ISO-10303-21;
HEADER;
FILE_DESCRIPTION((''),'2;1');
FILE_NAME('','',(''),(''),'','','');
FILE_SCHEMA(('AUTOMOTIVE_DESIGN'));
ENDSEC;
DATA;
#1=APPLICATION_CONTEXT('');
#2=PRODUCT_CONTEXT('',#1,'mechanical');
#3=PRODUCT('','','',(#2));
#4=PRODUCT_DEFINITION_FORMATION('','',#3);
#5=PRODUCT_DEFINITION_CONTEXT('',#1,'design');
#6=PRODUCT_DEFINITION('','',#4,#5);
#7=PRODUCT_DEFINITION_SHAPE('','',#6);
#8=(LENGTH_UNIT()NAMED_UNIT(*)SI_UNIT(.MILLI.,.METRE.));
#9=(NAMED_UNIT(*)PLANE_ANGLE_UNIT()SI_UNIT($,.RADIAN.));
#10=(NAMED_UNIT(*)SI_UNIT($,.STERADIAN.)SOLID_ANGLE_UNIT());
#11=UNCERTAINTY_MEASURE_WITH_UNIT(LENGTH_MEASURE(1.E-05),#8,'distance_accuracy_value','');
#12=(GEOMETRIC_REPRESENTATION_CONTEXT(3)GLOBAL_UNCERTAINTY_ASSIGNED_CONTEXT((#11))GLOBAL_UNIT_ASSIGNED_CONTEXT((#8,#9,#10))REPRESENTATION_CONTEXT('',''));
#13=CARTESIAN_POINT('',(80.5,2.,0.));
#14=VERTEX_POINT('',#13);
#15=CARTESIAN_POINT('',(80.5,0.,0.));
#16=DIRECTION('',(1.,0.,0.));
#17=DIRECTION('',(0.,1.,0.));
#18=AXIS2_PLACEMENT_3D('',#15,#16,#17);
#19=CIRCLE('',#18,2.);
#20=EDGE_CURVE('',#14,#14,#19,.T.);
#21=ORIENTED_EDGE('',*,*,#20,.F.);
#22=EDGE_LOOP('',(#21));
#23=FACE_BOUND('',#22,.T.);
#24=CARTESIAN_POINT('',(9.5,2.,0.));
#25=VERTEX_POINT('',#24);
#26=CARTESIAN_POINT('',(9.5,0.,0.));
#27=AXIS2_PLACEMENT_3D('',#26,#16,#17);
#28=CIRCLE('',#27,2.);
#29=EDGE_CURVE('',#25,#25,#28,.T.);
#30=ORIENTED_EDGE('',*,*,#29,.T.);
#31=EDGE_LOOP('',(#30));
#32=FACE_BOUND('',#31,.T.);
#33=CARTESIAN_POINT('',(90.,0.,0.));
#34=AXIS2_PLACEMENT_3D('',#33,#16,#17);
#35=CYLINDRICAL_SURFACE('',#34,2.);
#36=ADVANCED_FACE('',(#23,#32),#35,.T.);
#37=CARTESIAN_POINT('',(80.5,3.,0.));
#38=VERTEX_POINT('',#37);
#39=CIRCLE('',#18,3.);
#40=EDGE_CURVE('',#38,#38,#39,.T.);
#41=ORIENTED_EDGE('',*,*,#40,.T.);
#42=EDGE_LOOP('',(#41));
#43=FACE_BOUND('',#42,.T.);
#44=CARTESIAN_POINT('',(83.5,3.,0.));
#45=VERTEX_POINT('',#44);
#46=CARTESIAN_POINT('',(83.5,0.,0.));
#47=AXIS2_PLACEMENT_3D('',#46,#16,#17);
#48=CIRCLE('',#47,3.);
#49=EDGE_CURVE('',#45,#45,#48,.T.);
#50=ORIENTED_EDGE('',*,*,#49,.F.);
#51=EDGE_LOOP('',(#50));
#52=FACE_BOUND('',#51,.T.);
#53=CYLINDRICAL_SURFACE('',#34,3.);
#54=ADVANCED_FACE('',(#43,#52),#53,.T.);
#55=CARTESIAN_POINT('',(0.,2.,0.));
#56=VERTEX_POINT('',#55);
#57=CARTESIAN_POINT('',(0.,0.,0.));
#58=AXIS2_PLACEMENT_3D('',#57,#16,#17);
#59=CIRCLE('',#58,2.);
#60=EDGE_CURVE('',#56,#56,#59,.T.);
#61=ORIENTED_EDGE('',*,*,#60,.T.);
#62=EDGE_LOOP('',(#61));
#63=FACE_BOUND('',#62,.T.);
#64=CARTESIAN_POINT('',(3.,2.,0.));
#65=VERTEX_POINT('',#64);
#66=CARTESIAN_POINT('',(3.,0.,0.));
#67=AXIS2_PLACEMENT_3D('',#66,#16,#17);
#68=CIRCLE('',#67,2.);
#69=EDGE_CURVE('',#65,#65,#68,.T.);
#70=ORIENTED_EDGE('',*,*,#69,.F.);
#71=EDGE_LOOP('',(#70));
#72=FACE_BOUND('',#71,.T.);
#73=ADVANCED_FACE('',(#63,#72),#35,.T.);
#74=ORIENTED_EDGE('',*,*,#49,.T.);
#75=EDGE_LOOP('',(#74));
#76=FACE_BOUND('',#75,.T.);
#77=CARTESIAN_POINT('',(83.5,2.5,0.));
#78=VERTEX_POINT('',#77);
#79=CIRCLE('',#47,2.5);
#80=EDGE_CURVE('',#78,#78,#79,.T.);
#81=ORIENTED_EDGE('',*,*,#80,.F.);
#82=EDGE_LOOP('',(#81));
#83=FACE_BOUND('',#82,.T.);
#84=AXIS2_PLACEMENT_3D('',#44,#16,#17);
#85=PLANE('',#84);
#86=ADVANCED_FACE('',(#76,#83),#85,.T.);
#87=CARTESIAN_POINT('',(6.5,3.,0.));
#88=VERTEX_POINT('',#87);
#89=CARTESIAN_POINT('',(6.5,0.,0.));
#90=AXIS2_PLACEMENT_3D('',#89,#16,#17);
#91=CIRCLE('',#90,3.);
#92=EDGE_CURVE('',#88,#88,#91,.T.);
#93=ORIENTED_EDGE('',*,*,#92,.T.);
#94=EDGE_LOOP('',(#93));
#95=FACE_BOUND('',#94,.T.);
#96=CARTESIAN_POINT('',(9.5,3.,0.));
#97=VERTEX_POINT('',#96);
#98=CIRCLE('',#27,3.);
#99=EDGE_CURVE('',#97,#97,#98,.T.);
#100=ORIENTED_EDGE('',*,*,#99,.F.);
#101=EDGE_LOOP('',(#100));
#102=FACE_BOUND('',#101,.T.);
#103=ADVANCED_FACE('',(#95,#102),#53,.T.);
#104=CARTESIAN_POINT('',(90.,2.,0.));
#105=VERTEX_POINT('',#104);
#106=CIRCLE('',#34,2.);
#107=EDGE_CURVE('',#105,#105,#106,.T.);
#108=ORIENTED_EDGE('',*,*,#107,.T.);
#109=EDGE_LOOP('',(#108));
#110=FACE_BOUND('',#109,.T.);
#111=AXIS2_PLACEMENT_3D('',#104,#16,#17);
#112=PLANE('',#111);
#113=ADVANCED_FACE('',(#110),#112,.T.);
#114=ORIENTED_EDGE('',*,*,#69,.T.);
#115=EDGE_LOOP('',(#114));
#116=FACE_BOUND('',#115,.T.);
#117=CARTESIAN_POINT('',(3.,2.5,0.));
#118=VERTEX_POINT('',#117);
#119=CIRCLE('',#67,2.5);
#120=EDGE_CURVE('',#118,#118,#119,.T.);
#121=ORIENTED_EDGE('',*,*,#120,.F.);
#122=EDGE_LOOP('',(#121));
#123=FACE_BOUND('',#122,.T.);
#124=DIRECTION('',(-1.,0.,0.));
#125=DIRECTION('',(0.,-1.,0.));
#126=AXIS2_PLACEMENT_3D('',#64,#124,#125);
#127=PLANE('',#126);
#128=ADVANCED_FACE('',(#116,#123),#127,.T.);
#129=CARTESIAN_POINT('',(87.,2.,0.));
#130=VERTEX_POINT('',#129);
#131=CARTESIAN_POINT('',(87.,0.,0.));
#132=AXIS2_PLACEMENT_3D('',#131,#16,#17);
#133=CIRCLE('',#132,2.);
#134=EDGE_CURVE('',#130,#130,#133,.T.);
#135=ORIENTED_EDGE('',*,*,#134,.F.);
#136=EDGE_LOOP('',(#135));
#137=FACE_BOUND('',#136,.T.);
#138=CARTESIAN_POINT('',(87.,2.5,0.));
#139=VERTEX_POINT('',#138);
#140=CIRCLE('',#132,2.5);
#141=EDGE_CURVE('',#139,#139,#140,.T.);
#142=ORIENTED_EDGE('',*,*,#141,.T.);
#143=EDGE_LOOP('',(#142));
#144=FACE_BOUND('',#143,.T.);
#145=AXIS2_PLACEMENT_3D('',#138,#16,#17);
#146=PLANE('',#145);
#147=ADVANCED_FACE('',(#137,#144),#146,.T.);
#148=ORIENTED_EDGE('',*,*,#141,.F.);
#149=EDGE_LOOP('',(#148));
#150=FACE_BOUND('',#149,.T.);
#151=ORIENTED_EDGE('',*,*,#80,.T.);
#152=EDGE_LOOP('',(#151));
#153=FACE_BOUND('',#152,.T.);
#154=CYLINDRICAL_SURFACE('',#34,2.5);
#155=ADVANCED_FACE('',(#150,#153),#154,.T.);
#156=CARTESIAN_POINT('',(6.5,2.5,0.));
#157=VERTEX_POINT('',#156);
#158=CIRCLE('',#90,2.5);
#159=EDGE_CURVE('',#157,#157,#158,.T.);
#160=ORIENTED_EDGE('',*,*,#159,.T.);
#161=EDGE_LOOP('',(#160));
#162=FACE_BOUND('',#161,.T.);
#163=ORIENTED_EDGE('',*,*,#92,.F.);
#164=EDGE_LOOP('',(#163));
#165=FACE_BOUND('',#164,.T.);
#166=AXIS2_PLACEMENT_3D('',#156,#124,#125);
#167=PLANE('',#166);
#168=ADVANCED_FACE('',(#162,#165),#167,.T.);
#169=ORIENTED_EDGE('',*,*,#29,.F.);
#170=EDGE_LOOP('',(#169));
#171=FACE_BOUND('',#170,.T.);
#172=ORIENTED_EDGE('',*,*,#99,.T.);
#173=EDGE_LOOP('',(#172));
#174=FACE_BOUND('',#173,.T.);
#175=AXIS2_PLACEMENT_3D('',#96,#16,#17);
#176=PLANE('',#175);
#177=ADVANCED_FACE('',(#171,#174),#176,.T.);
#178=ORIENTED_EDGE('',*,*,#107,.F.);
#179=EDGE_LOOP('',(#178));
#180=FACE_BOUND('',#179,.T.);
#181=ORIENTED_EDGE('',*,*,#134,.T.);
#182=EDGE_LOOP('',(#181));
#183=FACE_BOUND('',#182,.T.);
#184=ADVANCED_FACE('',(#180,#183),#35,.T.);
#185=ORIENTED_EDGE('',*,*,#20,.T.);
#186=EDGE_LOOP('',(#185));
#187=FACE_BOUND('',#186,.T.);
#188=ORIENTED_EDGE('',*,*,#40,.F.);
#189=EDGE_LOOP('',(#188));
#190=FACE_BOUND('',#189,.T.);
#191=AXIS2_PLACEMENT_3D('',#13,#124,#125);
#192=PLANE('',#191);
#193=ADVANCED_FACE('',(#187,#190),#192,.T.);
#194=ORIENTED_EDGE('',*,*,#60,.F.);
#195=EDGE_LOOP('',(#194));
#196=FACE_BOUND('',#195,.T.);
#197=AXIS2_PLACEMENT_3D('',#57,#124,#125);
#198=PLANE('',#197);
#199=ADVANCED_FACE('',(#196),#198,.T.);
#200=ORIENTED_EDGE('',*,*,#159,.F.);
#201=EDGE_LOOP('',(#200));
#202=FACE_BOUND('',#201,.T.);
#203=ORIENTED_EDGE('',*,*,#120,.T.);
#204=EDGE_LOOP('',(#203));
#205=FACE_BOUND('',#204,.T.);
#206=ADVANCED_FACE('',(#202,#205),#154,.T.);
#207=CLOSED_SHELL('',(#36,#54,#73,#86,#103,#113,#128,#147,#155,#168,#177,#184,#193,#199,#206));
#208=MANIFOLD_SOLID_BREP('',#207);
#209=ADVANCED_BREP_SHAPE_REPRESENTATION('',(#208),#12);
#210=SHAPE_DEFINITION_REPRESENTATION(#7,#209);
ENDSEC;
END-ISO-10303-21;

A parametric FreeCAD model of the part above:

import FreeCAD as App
import Part
import Sketcher

V = App.Vector


def add_polygon(sketch, points):
    """Adds a closed chain of lines whose ends are joined by coincident constraints."""
    first, n = sketch.GeometryCount, len(points)
    for a, b in zip(points, points[1:] + points[:1]):
        sketch.addGeometry(Part.LineSegment(App.Vector(*a, 0), App.Vector(*b, 0)), False)
    for i in range(n):
        sketch.addConstraint(Sketcher.Constraint("Coincident", first + i, 2, first + (i + 1) % n, 1))

doc = App.newDocument("Part")
body = doc.addObject("PartDesign::Body", "Body")

# Sketch on XY plane
sketch1 = doc.addObject("Sketcher::SketchObject", "Sketch")
body.addObject(sketch1)
sketch1.AttachmentSupport = (doc.XY_Plane, [""])
sketch1.MapMode = "FlatFace"
add_polygon(sketch1, [(0, 2), (0, 0), (90, 0), (90, 2), (87, 2), (87, 2.5), (83.5, 2.5), (83.5, 3), (80.5, 3), (80.5, 2), (9.5, 2), (9.5, 3), (6.5, 3), (6.5, 2.5), (3, 2.5), (3, 2)])  # lines 0-15
sketch1.addConstraint([
    Sketcher.Constraint("Vertical", 0),
    Sketcher.Constraint("Horizontal", 1),
    Sketcher.Constraint("Vertical", 2),
    Sketcher.Constraint("Horizontal", 3),
    Sketcher.Constraint("Vertical", 4),
    Sketcher.Constraint("Horizontal", 5),
    Sketcher.Constraint("Vertical", 6),
    Sketcher.Constraint("Horizontal", 7),
    Sketcher.Constraint("Vertical", 8),
    Sketcher.Constraint("Horizontal", 9),
    Sketcher.Constraint("Vertical", 10),
    Sketcher.Constraint("Horizontal", 11),
    Sketcher.Constraint("Vertical", 12),
    Sketcher.Constraint("Horizontal", 13),
    Sketcher.Constraint("Vertical", 14),
    Sketcher.Constraint("Horizontal", 15),
    Sketcher.Constraint("Coincident", 0, 2, -1, 1),
    Sketcher.Constraint("Horizontal", 3, 2, 8, 2),
    Sketcher.Constraint("Horizontal", 7, 2, 10, 2),
    Sketcher.Constraint("Horizontal", 5, 2, 12, 2),
    Sketcher.Constraint("Horizontal", 9, 2, 14, 2),
    Sketcher.Constraint("Equal", 3, 7),
    Sketcher.Constraint("Equal", 7, 11),
    Sketcher.Constraint("Equal", 5, 13),
    Sketcher.Constraint("Equal", 11, 15),
    Sketcher.Constraint("Equal", 4, 6),
    Sketcher.Constraint("DistanceX", 1, 1, 1, 2, 90.0),
    Sketcher.Constraint("DistanceX", 3, 2, 3, 1, 3.0),
    Sketcher.Constraint("DistanceX", 9, 2, 9, 1, 71.0),
    Sketcher.Constraint("DistanceY", 0, 2, 0, 1, 2.0),
    Sketcher.Constraint("DistanceY", 8, 2, 8, 1, 1.0),
])
revolution = doc.addObject("PartDesign::Revolution", "Revolution")
body.addObject(revolution)
revolution.Profile = sketch1
revolution.ReferenceAxis = (sketch1, ["H_Axis"])
revolution.Angle = 360

doc.recompute()
